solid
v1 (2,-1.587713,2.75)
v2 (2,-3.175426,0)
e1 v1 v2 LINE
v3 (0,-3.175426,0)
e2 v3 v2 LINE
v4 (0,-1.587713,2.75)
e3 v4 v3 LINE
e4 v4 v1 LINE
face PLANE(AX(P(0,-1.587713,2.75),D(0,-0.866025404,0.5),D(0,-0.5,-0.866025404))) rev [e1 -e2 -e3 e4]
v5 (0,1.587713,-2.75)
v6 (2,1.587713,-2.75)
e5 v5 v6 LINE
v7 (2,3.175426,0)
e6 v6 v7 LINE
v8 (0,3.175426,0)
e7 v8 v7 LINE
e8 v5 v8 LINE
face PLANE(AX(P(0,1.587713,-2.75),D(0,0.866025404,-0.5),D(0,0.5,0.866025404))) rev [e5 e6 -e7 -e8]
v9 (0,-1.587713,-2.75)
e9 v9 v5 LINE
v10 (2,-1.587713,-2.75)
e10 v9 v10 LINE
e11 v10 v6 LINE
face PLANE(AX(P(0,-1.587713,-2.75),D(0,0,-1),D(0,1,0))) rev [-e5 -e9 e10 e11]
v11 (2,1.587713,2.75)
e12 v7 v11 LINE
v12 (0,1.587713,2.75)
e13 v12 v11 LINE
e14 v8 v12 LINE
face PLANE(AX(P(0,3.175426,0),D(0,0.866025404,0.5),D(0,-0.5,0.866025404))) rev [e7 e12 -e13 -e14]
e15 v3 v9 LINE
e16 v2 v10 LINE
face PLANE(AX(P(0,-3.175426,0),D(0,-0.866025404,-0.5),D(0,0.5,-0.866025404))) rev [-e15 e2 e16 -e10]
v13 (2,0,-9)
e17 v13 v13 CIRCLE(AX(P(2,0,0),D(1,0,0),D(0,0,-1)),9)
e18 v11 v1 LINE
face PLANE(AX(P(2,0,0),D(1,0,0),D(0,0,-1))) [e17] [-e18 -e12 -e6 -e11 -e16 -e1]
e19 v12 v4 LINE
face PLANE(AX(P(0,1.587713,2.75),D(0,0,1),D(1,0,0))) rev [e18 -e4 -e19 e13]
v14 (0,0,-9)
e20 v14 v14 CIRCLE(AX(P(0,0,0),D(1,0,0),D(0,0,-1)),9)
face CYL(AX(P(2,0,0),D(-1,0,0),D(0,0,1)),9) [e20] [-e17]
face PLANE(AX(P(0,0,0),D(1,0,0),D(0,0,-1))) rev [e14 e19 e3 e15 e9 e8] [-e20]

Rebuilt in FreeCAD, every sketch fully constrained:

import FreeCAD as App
import Part
import Sketcher

V = App.Vector
Q = App.Units.Quantity

doc = App.newDocument("Part")
body = doc.addObject("PartDesign::Body", "Body")

# Sketch on YZ plane
sketch1 = body.newObject("Sketcher::SketchObject", "Sketch")
sketch1.AttachmentSupport = (doc.getObject("YZ_Plane"), [""])
sketch1.MapMode = "FlatFace"
sketch1.addGeometry(Part.Circle(V(0, 0, 0), V(0, 0, 1), 9), False)
sketch1.addConstraint(Sketcher.Constraint("Coincident", 0, 3, -1, 1))
sketch1.addConstraint(Sketcher.Constraint("Diameter", 0, 18.0))
pad1 = body.newObject("PartDesign::Pad", "Pad")
pad1.Profile = sketch1
pad1.Length = 2

# Sketch on YZ plane
sketch2 = body.newObject("Sketcher::SketchObject", "Sketch001")
sketch2.AttachmentSupport = (doc.getObject("YZ_Plane"), [""])
sketch2.MapMode = "FlatFace"
sketch2.AttachmentOffset = App.Placement(V(0, 0, 2), App.Rotation())
sketch2.addGeometry(Part.LineSegment(V(3.2, 0, 0), V(1.6, 2.8, 0)), False)
sketch2.addGeometry(Part.LineSegment(V(1.6, 2.8, 0), V(-1.6, 2.8, 0)), False)
sketch2.addGeometry(Part.LineSegment(V(-1.6, 2.8, 0), V(-3.2, 0, 0)), False)
sketch2.addGeometry(Part.LineSegment(V(-3.2, 0, 0), V(-1.6, -2.8, 0)), False)
sketch2.addGeometry(Part.LineSegment(V(-1.6, -2.8, 0), V(1.6, -2.8, 0)), False)
sketch2.addGeometry(Part.LineSegment(V(1.6, -2.8, 0), V(3.2, 0, 0)), False)
sketch2.addConstraint(Sketcher.Constraint("Coincident", 0, 2, 1, 1))
sketch2.addConstraint(Sketcher.Constraint("Coincident", 1, 2, 2, 1))
sketch2.addConstraint(Sketcher.Constraint("Coincident", 2, 2, 3, 1))
sketch2.addConstraint(Sketcher.Constraint("Coincident", 3, 2, 4, 1))
sketch2.addConstraint(Sketcher.Constraint("Coincident", 4, 2, 5, 1))
sketch2.addConstraint(Sketcher.Constraint("Coincident", 5, 2, 0, 1))
sketch2.addConstraint(Sketcher.Constraint("Horizontal", 1))
sketch2.addConstraint(Sketcher.Constraint("Horizontal", 4))
sketch2.addConstraint(Sketcher.Constraint("Symmetric", 0, 2, 3, 2, -1, 1))
sketch2.addConstraint(Sketcher.Constraint("Symmetric", 2, 2, 5, 2, -1, 1))
sketch2.addConstraint(Sketcher.Constraint("PointOnObject", 2, 2, -1))
sketch2.addConstraint(Sketcher.Constraint("Parallel", 2, 5))
sketch2.addConstraint(Sketcher.Constraint("Vertical", 1, 2, 3, 2))
sketch2.addConstraint(Sketcher.Constraint("Angle", 0, Q("120 deg")))
sketch2.addConstraint(Sketcher.Constraint("DistanceY", 3, 2, 1, 2, 5.5))
sketch2.addConstraint(Sketcher.Constraint("DistanceX", 1, 2, 1, 1, 3.175426))
pocket1 = body.newObject("PartDesign::Pocket", "Pocket")
pocket1.Profile = sketch2
pocket1.Type = "ThroughAll"

doc.recompute()
